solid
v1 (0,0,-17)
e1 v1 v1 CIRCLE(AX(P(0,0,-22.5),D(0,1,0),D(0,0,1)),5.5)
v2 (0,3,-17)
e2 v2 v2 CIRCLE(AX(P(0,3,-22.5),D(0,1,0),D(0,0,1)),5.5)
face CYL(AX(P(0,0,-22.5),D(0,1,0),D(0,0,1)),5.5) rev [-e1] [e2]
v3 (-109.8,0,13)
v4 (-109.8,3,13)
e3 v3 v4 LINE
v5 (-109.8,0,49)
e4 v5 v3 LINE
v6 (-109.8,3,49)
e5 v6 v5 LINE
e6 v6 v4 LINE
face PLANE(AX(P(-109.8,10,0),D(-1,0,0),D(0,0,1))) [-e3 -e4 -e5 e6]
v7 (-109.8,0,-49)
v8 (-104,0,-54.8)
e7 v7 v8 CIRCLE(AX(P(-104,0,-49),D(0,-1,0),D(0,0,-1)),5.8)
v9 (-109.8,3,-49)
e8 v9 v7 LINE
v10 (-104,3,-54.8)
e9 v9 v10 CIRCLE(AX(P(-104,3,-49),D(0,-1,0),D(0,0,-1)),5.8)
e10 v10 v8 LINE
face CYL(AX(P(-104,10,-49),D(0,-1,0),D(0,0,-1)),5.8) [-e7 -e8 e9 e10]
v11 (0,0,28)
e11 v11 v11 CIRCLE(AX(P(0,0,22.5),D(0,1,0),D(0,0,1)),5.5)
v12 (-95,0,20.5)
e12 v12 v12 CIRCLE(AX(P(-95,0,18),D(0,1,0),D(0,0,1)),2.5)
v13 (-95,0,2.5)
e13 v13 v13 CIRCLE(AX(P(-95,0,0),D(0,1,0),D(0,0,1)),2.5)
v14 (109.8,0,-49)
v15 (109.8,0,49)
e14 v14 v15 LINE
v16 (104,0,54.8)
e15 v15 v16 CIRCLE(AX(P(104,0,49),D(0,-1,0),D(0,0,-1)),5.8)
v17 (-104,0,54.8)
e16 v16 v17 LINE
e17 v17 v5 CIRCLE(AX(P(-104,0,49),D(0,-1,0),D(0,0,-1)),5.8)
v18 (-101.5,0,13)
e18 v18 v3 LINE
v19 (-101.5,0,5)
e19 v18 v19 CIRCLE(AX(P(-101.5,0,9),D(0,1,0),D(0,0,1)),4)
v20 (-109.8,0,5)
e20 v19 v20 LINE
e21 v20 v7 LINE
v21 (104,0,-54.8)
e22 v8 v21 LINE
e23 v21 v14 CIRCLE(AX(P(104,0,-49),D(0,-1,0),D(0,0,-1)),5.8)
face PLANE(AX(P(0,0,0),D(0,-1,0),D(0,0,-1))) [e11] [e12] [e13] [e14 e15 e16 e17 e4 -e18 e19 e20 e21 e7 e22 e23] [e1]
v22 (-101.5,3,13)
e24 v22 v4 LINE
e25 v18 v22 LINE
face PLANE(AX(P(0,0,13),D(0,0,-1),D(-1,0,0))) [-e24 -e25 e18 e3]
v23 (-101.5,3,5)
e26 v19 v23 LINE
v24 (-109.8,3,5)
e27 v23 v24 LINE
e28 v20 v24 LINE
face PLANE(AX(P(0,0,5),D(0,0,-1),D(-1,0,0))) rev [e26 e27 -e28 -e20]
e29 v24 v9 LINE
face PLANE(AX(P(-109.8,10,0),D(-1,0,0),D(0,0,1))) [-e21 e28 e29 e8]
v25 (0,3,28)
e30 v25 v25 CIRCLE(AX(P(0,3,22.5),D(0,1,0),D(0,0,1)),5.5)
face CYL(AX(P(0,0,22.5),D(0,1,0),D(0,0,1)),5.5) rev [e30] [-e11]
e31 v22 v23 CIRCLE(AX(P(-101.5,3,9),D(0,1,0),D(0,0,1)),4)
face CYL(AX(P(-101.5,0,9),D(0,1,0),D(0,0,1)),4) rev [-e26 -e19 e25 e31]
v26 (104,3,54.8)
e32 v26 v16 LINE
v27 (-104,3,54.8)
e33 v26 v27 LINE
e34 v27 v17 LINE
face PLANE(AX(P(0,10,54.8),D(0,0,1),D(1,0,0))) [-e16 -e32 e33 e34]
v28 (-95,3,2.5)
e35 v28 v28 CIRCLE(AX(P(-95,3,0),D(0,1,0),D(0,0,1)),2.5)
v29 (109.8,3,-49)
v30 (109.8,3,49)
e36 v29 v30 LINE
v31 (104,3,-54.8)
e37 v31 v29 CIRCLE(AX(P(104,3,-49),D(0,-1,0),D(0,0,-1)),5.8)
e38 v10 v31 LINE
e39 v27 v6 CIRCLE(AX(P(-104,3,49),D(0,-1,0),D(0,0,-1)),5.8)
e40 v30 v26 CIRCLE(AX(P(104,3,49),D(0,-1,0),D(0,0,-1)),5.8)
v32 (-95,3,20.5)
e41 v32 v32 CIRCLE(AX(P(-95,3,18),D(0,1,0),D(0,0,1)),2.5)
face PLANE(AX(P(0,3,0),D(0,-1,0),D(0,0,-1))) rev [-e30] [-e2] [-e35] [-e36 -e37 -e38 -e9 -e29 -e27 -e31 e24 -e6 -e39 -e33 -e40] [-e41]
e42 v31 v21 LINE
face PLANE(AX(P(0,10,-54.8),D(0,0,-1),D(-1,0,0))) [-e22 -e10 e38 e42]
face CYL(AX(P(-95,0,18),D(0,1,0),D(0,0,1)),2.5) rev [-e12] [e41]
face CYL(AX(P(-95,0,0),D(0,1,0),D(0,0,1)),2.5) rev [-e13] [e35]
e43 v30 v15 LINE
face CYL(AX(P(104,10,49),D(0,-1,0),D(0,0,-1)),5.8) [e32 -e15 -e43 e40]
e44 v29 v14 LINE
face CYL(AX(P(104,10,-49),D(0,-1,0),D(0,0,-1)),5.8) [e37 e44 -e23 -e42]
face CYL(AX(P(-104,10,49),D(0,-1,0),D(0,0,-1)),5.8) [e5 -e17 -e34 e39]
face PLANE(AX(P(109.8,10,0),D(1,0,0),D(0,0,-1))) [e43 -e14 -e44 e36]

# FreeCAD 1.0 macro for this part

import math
import FreeCAD as App
import Part
import Sketcher

V = App.Vector

doc = App.newDocument("Part")
body = doc.addObject("PartDesign::Body", "Body")

sketch1 = doc.addObject("Sketcher::SketchObject", "Sketch")
body.addObject(sketch1)
sketch1.AttachmentSupport = (doc.XZ_Plane, [""])
sketch1.MapMode = "FlatFace"
sketch1.addGeometry([
    Part.LineSegment(V(-110, -55, 0), V(-110, 55, 0)),
    Part.LineSegment(V(-110, 55, 0), V(110, 55, 0)),
    Part.LineSegment(V(110, 55, 0), V(110, -55, 0)),
    Part.LineSegment(V(110, -55, 0), V(-110, -55, 0)),
], False)
sketch1.addConstraint([
    Sketcher.Constraint("Coincident", 0, 2, 1, 1),
    Sketcher.Constraint("Coincident", 1, 2, 2, 1),
    Sketcher.Constraint("Coincident", 2, 2, 3, 1),
    Sketcher.Constraint("Coincident", 3, 2, 0, 1),
    Sketcher.Constraint("Vertical", 0),
    Sketcher.Constraint("Horizontal", 1),
    Sketcher.Constraint("Vertical", 2),
    Sketcher.Constraint("Horizontal", 3),
    Sketcher.Constraint("Symmetric", 0, 2, 2, 2, -1, 1),
    Sketcher.Constraint("DistanceX", 1, 1, 1, 2, 220.0),
    Sketcher.Constraint("DistanceY", 0, 1, 0, 2, 110.0),
])
pad1 = doc.addObject("PartDesign::Pad", "Pad")
body.addObject(pad1)
pad1.Profile = sketch1
pad1.Length = 3
pad1.Reversed = True

sketch2 = doc.addObject("Sketcher::SketchObject", "Sketch001")
body.addObject(sketch2)
sketch2.AttachmentSupport = (doc.XZ_Plane, [""])
sketch2.MapMode = "FlatFace"
sketch2.addGeometry([
    Part.LineSegment(V(-110, 55, 0), V(-110, -55, 0)),
    Part.LineSegment(V(-110, -55, 0), V(110, -55, 0)),
    Part.LineSegment(V(110, -55, 0), V(110, 55, 0)),
    Part.LineSegment(V(110, 55, 0), V(-110, 55, 0)),
    Part.ArcOfCircle(Part.Circle(V(104, -49, 0), V(0, 0, 1), 6), math.radians(-90), math.radians(0)),
    Part.LineSegment(V(104, -55, 0), V(-104, -55, 0)),
    Part.ArcOfCircle(Part.Circle(V(-104, -49, 0), V(0, 0, 1), 6), math.radians(180), math.radians(270)),
    Part.LineSegment(V(-110, -49, 0), V(-110, 49, 0)),
    Part.ArcOfCircle(Part.Circle(V(-104, 49, 0), V(0, 0, 1), 6), math.radians(90), math.radians(180)),
    Part.LineSegment(V(-104, 55, 0), V(104, 55, 0)),
    Part.ArcOfCircle(Part.Circle(V(104, 49, 0), V(0, 0, 1), 6), math.radians(0), math.radians(90)),
    Part.LineSegment(V(110, 49, 0), V(110, -49, 0)),
], False)
sketch2.addConstraint([
    Sketcher.Constraint("Coincident", 0, 2, 1, 1),
    Sketcher.Constraint("Coincident", 1, 2, 2, 1),
    Sketcher.Constraint("Coincident", 2, 2, 3, 1),
    Sketcher.Constraint("Coincident", 3, 2, 0, 1),
    Sketcher.Constraint("Tangent", 4, 1, 5, 1),
    Sketcher.Constraint("Tangent", 5, 2, 6, 2),
    Sketcher.Constraint("Tangent", 6, 1, 7, 1),
    Sketcher.Constraint("Tangent", 7, 2, 8, 2),
    Sketcher.Constraint("Tangent", 8, 1, 9, 1),
    Sketcher.Constraint("Tangent", 9, 2, 10, 2),
    Sketcher.Constraint("Tangent", 10, 1, 11, 1),
    Sketcher.Constraint("Tangent", 11, 2, 4, 2),
    Sketcher.Constraint("Vertical", 0),
    Sketcher.Constraint("Horizontal", 1),
    Sketcher.Constraint("Vertical", 2),
    Sketcher.Constraint("Horizontal", 3),
    Sketcher.Constraint("Horizontal", 5),
    Sketcher.Constraint("Vertical", 7),
    Sketcher.Constraint("Horizontal", 9),
    Sketcher.Constraint("Vertical", 11),
    Sketcher.Constraint("Equal", 4, 6),
    Sketcher.Constraint("Equal", 6, 8),
    Sketcher.Constraint("Equal", 8, 10),
    Sketcher.Constraint("Symmetric", 4, 3, 8, 3, -1, 1),
    Sketcher.Constraint("Symmetric", 0, 2, 2, 2, -1, 1),
    Sketcher.Constraint("Radius", 4, 5.8),
    Sketcher.Constraint("DistanceX", 1, 1, 1, 2, 220.0),
    Sketcher.Constraint("DistanceX", 5, 2, 5, 1, 208.0),
    Sketcher.Constraint("DistanceY", 0, 2, 0, 1, 110.0),
    Sketcher.Constraint("DistanceY", 7, 1, 7, 2, 98.0),
])
pocket1 = doc.addObject("PartDesign::Pocket", "Pocket")
body.addObject(pocket1)
pocket1.Profile = sketch2
pocket1.Length = 10

sketch3 = doc.addObject("Sketcher::SketchObject", "Sketch002")
body.addObject(sketch3)
sketch3.AttachmentSupport = (doc.XZ_Plane, [""])
sketch3.MapMode = "FlatFace"
sketch3.AttachmentOffset = App.Placement(V(0, 0, -3), App.Rotation())
sketch3.addGeometry([
    Part.Circle(V(-95, 0, 0), V(0, 0, 1), 2.5),
    Part.Circle(V(-95, 18, 0), V(0, 0, 1), 2.5),
    Part.ArcOfCircle(Part.Circle(V(-101.5, 9, 0), V(0, 0, 1), 4), math.radians(-90), math.radians(90)),
    Part.LineSegment(V(-101.5, 5, 0), V(-109.8, 5, 0)),
    Part.LineSegment(V(-109.8, 5, 0), V(-109.8, 13, 0)),
    Part.LineSegment(V(-109.8, 13, 0), V(-101.5, 13, 0)),
], False)
sketch3.addConstraint([
    Sketcher.Constraint("Tangent", 2, 1, 3, 1),
    Sketcher.Constraint("Coincident", 3, 2, 4, 1),
    Sketcher.Constraint("Coincident", 4, 2, 5, 1),
    Sketcher.Constraint("Tangent", 5, 2, 2, 2),
    Sketcher.Constraint("Horizontal", 3),
    Sketcher.Constraint("Vertical", 4),
    Sketcher.Constraint("Horizontal", 5),
    Sketcher.Constraint("Equal", 0, 1),
    Sketcher.Constraint("PointOnObject", 0, 3, -1),
    Sketcher.Constraint("Vertical", 0, 3, 1, 3),
    Sketcher.Constraint("Diameter", 0, 5.0),
    Sketcher.Constraint("Radius", 2, 4.0),
    Sketcher.Constraint("DistanceX", 3, 2, 3, 1, 8.3),
    Sketcher.Constraint("DistanceX", 0, 3, -1, 1, 95.0),
    Sketcher.Constraint("DistanceY", -1, 1, 1, 3, 18.0),
    Sketcher.Constraint("DistanceY", -1, 1, 2, 3, 9.0),
    Sketcher.Constraint("DistanceX", 2, 3, -1, 1, 101.5),
])
pocket2 = doc.addObject("PartDesign::Pocket", "Pocket001")
body.addObject(pocket2)
pocket2.Profile = sketch3
pocket2.Length = 123.752108
pocket2.Reversed = True

sketch4 = doc.addObject("Sketcher::SketchObject", "Sketch003")
body.addObject(sketch4)
sketch4.AttachmentSupport = (doc.XZ_Plane, [""])
sketch4.MapMode = "FlatFace"
sketch4.AttachmentOffset = App.Placement(V(0, 0, -3), App.Rotation())
sketch4.addGeometry([
    Part.Circle(V(0, -22, 0), V(0, 0, 1), 6),
    Part.Circle(V(0, 22, 0), V(0, 0, 1), 6),
], False)
sketch4.addConstraint([
    Sketcher.Constraint("Equal", 0, 1),
    Sketcher.Constraint("Symmetric", 0, 3, 1, 3, -1, 1),
    Sketcher.Constraint("PointOnObject", 0, 3, -2),
    Sketcher.Constraint("Diameter", 0, 11.0),
    Sketcher.Constraint("DistanceY", 0, 3, 1, 3, 45.0),
])
pocket3 = doc.addObject("PartDesign::Pocket", "Pocket002")
body.addObject(pocket3)
pocket3.Profile = sketch4
pocket3.Type = "ThroughAll"
pocket3.Reversed = True

doc.recompute()
